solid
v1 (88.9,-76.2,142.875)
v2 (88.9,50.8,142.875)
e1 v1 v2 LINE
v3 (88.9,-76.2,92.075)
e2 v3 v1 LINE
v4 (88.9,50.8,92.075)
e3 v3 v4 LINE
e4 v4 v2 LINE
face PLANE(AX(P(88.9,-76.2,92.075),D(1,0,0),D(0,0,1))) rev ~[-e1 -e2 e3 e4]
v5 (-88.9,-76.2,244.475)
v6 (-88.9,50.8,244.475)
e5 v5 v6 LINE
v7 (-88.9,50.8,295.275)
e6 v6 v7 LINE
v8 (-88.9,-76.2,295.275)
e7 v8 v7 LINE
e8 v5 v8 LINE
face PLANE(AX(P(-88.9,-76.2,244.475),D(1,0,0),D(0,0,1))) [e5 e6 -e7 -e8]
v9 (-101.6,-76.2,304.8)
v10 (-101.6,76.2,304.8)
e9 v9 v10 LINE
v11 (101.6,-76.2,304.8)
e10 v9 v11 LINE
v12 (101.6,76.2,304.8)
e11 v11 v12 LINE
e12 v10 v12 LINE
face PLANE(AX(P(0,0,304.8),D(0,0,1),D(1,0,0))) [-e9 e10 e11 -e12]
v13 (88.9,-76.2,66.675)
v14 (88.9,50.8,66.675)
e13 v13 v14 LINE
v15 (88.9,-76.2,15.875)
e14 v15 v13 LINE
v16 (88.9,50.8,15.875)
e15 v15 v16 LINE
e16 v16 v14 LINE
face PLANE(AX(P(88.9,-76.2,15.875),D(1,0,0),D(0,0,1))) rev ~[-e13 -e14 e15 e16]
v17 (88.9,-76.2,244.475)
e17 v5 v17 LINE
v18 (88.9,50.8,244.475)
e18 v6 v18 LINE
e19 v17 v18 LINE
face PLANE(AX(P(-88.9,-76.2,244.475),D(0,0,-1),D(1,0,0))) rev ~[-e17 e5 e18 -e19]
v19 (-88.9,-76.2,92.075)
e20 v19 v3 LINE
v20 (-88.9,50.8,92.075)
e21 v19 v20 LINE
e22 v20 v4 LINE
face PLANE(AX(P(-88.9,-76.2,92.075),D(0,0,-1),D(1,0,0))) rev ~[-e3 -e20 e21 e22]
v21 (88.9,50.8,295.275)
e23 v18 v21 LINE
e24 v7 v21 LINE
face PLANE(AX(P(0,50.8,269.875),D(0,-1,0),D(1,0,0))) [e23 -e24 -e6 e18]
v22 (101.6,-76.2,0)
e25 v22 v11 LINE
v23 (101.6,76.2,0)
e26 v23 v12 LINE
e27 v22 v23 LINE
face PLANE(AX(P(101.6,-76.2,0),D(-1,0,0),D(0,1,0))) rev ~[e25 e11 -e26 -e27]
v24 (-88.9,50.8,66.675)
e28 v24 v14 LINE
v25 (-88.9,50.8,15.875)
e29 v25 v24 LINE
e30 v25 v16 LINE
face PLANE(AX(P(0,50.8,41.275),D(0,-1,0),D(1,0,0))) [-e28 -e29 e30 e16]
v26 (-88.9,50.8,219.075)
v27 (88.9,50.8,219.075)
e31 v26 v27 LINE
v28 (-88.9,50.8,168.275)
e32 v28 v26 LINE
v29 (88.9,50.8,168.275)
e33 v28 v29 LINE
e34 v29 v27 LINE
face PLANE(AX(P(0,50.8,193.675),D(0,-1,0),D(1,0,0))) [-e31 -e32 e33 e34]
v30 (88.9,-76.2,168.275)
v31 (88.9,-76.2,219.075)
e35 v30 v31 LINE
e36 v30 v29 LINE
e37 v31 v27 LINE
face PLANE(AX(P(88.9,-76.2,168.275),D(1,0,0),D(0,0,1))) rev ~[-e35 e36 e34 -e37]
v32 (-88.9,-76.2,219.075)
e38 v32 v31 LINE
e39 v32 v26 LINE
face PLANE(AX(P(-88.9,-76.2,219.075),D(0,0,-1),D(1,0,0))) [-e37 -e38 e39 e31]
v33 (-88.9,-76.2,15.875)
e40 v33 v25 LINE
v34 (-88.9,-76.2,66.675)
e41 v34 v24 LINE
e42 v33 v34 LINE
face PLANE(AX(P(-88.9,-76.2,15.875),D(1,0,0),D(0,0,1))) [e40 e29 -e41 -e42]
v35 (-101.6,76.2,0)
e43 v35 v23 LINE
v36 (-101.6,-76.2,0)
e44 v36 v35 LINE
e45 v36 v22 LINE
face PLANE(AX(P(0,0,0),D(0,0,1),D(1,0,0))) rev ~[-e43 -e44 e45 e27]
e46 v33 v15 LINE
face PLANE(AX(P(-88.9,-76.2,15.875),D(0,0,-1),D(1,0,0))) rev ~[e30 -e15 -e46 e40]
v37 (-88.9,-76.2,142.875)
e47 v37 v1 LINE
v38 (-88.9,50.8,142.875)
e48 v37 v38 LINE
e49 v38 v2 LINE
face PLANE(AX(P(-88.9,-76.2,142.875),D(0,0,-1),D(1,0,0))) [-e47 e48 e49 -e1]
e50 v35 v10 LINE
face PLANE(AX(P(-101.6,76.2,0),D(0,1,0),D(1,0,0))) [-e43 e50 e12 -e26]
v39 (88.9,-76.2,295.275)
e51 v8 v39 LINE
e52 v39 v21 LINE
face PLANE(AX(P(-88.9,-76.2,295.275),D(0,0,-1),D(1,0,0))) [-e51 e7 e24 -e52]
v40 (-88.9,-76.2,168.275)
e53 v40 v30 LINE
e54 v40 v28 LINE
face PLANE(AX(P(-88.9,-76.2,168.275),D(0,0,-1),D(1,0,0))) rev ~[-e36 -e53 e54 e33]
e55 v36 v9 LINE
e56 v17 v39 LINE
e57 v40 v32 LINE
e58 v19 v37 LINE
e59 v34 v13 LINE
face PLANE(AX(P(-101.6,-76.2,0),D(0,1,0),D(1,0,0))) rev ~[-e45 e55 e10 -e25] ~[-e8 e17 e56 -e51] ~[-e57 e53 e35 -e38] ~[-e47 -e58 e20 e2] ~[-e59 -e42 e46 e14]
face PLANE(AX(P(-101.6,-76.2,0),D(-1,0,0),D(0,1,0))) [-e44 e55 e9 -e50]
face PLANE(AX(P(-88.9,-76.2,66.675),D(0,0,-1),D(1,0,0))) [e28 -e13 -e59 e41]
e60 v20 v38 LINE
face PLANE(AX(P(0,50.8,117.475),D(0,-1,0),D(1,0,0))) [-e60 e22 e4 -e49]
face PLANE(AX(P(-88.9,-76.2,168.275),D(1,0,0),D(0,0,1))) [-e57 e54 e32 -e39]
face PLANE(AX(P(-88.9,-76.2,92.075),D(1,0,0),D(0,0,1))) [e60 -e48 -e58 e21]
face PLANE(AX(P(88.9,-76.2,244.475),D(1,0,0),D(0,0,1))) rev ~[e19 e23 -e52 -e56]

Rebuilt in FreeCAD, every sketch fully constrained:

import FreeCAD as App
import Part
import Sketcher
from FreeCAD import Vector
Q = App.Units.Quantity


def add_polygon(sketch, points):
    """Adds a closed chain of lines whose ends are joined by coincident constraints."""
    first, n = sketch.GeometryCount, len(points)
    for a, b in zip(points, points[1:] + points[:1]):
        sketch.addGeometry(Part.LineSegment(App.Vector(*a, 0), App.Vector(*b, 0)), False)
    for i in range(n):
        sketch.addConstraint(Sketcher.Constraint("Coincident", first + i, 2, first + (i + 1) % n, 1))

doc = App.newDocument("Part")
body = doc.addObject("PartDesign::Body", "Body")

sketch1 = body.newObject("Sketcher::SketchObject", "Sketch")
sketch1.AttachmentSupport = (doc.getObject("XY_Plane"), [""])
sketch1.MapMode = "FlatFace"
add_polygon(sketch1, [(-102, 76), (-102, -76), (102, -76), (102, 76)])
sketch1.addConstraint(Sketcher.Constraint("Vertical", 0))
sketch1.addConstraint(Sketcher.Constraint("Horizontal", 1))
sketch1.addConstraint(Sketcher.Constraint("Vertical", 2))
sketch1.addConstraint(Sketcher.Constraint("Horizontal", 3))
sketch1.addConstraint(Sketcher.Constraint("Symmetric", 0, 2, 2, 2, -1, 1))
sketch1.addConstraint(Sketcher.Constraint("DistanceX", 1, 1, 1, 2, Q("8 in")))
sketch1.addConstraint(Sketcher.Constraint("DistanceY", 0, 2, 0, 1, Q("6 in")))
pad1 = body.newObject("PartDesign::Pad", "Pad")
pad1.Profile = sketch1
pad1.Length = Q("12 in")

sketch2 = body.newObject("Sketcher::SketchObject", "Sketch001")
sketch2.AttachmentSupport = (doc.getObject("XZ_Plane"), [""])
sketch2.MapMode = "FlatFace"
sketch2.AttachmentOffset = App.Placement(Vector(0, 0, 3 * 25.4), App.Rotation())
add_polygon(sketch2, [(-89, 295), (-89, 244), (89, 244), (89, 295)])
add_polygon(sketch2, [(-89, 219), (-89, 168), (89, 168), (89, 219)])
add_polygon(sketch2, [(-89, 143), (-89, 92), (89, 92), (89, 143)])
add_polygon(sketch2, [(-89, 67), (-89, 16), (89, 16), (89, 67)])
sketch2.addConstraint(Sketcher.Constraint("Vertical", 0))
sketch2.addConstraint(Sketcher.Constraint("Horizontal", 1))
sketch2.addConstraint(Sketcher.Constraint("Vertical", 2))
sketch2.addConstraint(Sketcher.Constraint("Horizontal", 3))
sketch2.addConstraint(Sketcher.Constraint("Vertical", 4))
sketch2.addConstraint(Sketcher.Constraint("Horizontal", 5))
sketch2.addConstraint(Sketcher.Constraint("Vertical", 6))
sketch2.addConstraint(Sketcher.Constraint("Horizontal", 7))
sketch2.addConstraint(Sketcher.Constraint("Vertical", 8))
sketch2.addConstraint(Sketcher.Constraint("Horizontal", 9))
sketch2.addConstraint(Sketcher.Constraint("Vertical", 10))
sketch2.addConstraint(Sketcher.Constraint("Horizontal", 11))
sketch2.addConstraint(Sketcher.Constraint("Vertical", 12))
sketch2.addConstraint(Sketcher.Constraint("Horizontal", 13))
sketch2.addConstraint(Sketcher.Constraint("Vertical", 14))
sketch2.addConstraint(Sketcher.Constraint("Horizontal", 15))
sketch2.addConstraint(Sketcher.Constraint("Vertical", 3, 2, 4, 2))
sketch2.addConstraint(Sketcher.Constraint("Vertical", 2, 2, 5, 2))
sketch2.addConstraint(Sketcher.Constraint("Vertical", 7, 2, 8, 2))
sketch2.addConstraint(Sketcher.Constraint("Vertical", 6, 2, 9, 2))
sketch2.addConstraint(Sketcher.Constraint("Vertical", 11, 2, 12, 2))
sketch2.addConstraint(Sketcher.Constraint("Vertical", 10, 2, 13, 2))
sketch2.addConstraint(Sketcher.Constraint("Equal", 2, 4))
sketch2.addConstraint(Sketcher.Constraint("Equal", 6, 8))
sketch2.addConstraint(Sketcher.Constraint("Equal", 10, 12))
sketch2.addConstraint(Sketcher.Constraint("DistanceX", 1, 1, 1, 2, Q("7 in")))
sketch2.addConstraint(Sketcher.Constraint("DistanceY", 0, 2, 0, 1, Q("2 in")))
sketch2.addConstraint(Sketcher.Constraint("DistanceY", 4, 2, 0, 2, Q("3 in")))
sketch2.addConstraint(Sketcher.Constraint("DistanceY", 8, 2, 4, 2, Q("3 in")))
sketch2.addConstraint(Sketcher.Constraint("DistanceY", 12, 2, 8, 2, Q("3 in")))
sketch2.addConstraint(Sketcher.Constraint("DistanceX", 0, 2, -1, 1, Q("3.5 in")))
sketch2.addConstraint(Sketcher.Constraint("DistanceY", -1, 1, 0, 2, Q("9.625 in")))
pocket1 = body.newObject("PartDesign::Pocket", "Pocket")
pocket1.Profile = sketch2
pocket1.Length = Q("5 in")

doc.recompute()
